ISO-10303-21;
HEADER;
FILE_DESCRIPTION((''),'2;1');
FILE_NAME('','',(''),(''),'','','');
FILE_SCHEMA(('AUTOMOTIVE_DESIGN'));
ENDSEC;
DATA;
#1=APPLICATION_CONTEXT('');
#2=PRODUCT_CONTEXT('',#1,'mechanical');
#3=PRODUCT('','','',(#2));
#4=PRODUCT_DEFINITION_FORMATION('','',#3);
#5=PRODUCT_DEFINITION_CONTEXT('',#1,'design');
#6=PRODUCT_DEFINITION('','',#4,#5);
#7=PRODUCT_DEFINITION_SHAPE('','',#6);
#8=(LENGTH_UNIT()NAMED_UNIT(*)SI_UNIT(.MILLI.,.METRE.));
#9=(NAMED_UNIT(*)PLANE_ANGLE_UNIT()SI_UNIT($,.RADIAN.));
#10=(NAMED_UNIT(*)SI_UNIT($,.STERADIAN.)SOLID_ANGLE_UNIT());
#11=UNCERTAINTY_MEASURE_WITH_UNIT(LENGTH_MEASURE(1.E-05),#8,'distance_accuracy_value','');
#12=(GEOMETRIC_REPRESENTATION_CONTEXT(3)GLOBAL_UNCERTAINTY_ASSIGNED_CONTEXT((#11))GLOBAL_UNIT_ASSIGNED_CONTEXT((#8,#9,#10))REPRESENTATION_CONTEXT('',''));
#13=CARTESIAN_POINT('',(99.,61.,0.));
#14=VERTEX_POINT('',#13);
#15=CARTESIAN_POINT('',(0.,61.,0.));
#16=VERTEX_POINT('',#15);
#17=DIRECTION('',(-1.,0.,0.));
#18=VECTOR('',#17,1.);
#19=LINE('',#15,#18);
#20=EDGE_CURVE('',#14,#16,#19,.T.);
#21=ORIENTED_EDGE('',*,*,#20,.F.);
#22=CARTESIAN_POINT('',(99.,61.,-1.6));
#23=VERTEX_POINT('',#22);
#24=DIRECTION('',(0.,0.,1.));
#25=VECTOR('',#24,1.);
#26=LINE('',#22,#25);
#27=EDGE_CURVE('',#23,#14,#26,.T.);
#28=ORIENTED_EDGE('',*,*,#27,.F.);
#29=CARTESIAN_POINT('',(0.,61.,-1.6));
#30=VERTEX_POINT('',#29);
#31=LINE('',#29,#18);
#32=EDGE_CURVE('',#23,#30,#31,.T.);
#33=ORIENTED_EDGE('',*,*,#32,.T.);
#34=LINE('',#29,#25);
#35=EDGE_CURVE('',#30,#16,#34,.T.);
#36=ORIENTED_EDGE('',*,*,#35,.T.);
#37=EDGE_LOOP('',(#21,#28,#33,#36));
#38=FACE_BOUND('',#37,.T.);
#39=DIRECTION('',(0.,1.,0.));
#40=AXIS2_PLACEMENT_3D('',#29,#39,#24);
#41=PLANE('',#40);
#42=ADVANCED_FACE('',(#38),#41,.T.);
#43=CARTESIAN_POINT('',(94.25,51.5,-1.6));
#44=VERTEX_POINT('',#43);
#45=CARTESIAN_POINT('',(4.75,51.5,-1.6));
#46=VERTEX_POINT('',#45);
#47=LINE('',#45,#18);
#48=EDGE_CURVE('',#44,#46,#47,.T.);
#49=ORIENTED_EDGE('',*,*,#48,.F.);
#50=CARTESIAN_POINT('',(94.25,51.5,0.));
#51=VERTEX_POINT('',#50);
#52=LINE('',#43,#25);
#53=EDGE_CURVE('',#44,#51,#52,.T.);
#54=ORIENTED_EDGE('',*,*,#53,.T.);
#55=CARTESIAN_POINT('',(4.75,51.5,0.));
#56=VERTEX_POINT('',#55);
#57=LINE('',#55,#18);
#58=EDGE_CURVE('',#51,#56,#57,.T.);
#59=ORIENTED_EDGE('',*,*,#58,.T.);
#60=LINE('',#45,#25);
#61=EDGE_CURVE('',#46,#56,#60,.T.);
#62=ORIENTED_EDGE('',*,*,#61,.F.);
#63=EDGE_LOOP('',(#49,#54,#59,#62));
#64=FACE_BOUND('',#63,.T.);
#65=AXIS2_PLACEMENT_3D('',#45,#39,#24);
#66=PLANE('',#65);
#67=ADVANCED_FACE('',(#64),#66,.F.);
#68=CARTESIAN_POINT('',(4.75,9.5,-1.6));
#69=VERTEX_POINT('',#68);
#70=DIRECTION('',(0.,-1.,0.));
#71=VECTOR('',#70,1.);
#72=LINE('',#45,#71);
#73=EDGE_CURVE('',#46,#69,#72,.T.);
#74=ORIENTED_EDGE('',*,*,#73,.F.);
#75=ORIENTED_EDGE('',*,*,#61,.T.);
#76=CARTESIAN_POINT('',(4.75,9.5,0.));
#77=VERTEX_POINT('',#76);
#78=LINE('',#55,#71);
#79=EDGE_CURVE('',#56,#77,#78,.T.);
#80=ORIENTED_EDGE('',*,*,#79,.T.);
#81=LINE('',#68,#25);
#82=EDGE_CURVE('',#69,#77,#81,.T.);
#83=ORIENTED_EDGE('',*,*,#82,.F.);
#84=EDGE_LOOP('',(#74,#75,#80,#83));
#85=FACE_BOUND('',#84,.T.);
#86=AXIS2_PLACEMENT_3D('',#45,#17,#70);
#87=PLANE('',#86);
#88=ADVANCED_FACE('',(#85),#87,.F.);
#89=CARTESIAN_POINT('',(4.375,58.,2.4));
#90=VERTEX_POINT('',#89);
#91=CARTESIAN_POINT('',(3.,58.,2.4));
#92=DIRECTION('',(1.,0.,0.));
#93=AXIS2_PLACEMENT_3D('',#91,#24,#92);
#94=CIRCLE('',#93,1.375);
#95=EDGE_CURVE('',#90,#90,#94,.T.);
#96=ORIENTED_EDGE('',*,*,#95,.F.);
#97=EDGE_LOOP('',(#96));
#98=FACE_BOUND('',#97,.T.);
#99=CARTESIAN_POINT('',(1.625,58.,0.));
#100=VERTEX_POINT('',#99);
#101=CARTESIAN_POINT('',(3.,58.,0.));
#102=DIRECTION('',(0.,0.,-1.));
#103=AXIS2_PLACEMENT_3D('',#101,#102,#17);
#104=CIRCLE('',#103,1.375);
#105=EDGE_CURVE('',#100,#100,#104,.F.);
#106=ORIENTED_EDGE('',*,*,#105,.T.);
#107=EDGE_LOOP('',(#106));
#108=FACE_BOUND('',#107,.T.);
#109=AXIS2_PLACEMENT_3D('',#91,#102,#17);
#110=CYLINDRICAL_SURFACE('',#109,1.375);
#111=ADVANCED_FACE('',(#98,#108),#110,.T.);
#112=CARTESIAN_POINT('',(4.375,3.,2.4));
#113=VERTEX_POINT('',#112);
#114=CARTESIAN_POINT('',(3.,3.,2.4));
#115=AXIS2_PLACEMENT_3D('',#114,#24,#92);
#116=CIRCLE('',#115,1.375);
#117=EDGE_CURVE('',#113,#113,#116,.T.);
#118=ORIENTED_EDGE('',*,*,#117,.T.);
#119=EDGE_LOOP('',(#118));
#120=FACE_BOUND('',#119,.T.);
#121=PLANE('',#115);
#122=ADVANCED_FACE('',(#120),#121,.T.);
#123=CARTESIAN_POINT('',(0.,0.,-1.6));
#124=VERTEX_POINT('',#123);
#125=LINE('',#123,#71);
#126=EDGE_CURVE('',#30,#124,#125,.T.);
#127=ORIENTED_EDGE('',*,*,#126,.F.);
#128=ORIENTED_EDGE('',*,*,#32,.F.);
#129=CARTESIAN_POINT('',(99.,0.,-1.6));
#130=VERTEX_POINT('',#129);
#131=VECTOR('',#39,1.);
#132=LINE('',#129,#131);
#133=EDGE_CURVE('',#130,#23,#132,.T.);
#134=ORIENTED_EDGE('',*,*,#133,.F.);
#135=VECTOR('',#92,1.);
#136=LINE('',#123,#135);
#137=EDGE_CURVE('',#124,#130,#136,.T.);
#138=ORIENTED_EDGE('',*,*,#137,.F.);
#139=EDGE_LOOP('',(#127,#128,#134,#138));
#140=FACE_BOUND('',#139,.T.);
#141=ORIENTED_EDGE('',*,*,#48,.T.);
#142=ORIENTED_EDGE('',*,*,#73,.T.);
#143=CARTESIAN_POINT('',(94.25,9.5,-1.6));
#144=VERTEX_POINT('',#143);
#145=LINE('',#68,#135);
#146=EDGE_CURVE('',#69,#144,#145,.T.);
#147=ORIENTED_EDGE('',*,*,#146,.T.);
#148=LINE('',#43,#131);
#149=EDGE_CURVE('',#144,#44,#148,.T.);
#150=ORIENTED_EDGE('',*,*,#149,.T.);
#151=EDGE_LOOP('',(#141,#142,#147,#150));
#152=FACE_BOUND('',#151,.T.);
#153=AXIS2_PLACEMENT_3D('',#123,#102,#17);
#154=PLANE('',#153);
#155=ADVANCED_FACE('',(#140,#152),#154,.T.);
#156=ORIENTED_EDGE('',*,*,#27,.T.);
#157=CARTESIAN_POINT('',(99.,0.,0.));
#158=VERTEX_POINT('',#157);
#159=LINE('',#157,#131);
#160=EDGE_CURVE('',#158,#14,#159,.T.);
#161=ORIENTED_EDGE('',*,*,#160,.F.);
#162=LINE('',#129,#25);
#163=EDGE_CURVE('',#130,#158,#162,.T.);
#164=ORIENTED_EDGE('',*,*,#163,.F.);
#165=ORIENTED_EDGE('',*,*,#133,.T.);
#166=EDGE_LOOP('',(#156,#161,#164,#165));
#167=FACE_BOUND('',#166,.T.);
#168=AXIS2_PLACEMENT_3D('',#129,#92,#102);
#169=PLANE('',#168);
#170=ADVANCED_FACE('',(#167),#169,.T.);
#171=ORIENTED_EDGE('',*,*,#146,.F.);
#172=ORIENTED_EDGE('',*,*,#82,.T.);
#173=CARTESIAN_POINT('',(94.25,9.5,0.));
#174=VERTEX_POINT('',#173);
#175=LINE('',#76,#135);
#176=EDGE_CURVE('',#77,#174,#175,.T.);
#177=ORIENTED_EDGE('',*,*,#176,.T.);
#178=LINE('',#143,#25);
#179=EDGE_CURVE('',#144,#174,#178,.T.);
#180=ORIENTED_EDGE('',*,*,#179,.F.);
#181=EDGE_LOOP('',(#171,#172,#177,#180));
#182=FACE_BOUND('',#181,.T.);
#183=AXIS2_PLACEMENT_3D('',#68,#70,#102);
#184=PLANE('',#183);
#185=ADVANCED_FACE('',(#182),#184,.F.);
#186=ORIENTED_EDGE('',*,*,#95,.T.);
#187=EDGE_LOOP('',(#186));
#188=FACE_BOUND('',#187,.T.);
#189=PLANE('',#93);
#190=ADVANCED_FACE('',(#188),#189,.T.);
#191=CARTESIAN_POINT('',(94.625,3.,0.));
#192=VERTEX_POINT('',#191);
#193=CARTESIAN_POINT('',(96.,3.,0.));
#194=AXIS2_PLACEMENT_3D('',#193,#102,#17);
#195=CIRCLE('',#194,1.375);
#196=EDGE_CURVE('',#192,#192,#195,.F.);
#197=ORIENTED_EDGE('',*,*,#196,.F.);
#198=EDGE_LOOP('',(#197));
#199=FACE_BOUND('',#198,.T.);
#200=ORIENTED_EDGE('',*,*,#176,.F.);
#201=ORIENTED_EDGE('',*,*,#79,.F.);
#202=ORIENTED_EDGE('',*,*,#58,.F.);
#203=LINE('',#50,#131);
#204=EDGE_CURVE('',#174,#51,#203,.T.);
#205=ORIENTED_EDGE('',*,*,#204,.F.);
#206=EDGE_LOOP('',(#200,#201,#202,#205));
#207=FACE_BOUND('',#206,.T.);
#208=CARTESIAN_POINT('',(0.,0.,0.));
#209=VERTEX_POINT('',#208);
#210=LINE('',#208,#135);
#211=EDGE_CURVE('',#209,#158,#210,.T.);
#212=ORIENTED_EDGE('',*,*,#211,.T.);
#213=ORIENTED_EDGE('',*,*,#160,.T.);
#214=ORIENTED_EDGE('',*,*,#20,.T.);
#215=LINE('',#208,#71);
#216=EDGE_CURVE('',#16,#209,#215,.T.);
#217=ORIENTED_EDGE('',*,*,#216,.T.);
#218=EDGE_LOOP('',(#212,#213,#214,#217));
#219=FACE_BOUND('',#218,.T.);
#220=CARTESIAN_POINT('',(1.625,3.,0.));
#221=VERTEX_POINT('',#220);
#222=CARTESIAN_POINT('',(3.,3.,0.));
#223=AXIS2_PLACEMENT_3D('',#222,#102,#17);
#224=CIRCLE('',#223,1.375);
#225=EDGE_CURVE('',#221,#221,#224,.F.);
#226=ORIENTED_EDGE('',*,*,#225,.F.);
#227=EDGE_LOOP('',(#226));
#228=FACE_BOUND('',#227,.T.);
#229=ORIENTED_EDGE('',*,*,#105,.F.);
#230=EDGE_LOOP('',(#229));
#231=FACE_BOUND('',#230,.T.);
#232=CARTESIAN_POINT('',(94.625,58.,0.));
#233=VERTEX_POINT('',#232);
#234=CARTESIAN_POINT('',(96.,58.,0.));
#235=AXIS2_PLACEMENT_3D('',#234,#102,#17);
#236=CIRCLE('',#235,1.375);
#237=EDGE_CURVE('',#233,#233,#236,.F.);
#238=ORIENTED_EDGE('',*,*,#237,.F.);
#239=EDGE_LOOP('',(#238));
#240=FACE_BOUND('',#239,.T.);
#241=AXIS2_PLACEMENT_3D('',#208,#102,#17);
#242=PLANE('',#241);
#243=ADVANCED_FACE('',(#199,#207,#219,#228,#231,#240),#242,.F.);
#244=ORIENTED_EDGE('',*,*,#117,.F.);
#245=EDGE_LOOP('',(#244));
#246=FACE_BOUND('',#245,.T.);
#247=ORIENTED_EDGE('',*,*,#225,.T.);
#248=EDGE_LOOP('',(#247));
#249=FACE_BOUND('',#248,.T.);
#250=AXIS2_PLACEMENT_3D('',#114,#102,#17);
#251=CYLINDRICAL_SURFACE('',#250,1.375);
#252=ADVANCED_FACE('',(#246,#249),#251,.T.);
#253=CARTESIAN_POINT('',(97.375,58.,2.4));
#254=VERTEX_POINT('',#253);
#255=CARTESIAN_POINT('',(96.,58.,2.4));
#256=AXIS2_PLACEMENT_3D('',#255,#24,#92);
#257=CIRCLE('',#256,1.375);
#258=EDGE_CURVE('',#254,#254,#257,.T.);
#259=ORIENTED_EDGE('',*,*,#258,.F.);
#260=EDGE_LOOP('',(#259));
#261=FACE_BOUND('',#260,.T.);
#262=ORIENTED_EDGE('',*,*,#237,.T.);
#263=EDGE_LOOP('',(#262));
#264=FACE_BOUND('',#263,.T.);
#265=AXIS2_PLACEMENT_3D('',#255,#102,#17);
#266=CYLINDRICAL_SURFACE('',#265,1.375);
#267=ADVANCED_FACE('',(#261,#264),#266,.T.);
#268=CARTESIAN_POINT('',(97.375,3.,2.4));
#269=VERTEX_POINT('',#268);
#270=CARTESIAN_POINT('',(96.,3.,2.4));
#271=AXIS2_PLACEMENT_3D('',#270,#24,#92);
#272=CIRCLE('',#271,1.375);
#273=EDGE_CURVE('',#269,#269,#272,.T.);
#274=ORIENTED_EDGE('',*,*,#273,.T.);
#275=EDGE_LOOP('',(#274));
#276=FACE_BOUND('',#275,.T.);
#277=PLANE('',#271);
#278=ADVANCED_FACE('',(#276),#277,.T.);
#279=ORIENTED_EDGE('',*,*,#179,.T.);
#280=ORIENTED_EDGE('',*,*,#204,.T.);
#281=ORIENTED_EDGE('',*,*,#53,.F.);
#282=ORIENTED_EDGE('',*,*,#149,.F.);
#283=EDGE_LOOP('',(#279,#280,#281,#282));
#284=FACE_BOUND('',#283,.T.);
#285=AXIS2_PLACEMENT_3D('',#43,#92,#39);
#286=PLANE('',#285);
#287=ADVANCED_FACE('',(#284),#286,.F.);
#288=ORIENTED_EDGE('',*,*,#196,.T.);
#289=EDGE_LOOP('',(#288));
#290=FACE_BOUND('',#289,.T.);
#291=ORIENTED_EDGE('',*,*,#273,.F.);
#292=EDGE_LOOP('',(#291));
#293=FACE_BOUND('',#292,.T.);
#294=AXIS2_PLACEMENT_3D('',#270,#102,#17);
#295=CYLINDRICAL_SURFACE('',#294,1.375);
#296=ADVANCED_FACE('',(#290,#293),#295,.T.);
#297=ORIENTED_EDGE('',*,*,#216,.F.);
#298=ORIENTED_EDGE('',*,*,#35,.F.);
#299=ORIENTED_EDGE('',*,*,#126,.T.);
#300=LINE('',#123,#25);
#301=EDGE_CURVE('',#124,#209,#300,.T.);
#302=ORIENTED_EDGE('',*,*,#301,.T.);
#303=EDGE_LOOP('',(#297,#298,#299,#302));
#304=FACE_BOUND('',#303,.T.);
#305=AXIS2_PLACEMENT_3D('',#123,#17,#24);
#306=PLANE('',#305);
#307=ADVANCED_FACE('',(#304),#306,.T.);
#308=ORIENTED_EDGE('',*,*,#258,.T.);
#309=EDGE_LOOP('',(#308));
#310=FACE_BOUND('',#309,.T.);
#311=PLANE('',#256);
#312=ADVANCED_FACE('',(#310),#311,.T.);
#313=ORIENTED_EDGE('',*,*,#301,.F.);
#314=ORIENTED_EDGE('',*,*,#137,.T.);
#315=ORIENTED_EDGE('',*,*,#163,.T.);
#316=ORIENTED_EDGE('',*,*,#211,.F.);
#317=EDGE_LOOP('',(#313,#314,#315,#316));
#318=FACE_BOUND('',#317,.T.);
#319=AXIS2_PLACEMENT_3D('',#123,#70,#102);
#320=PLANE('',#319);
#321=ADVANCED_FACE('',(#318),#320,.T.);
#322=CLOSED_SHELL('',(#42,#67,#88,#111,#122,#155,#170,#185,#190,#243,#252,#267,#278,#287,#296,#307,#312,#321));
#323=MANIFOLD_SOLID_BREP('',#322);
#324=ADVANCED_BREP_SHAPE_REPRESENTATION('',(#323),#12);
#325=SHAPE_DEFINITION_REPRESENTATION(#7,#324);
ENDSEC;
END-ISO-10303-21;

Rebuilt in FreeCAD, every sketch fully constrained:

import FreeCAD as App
import Part
import Sketcher

doc = App.newDocument("Part")
body = doc.addObject("PartDesign::Body", "Body")

sketch1 = body.newObject("Sketcher::SketchObject", "Sketch")
sketch1.AttachmentSupport = (doc.getObject("XY_Plane"), [""])
sketch1.MapMode = "FlatFace"
sketch1.addGeometry(Part.LineSegment(App.Vector(0, 61, 0), App.Vector(0, 0, 0)), False)
sketch1.addGeometry(Part.LineSegment(App.Vector(0, 0, 0), App.Vector(99, 0, 0)), False)
sketch1.addGeometry(Part.LineSegment(App.Vector(99, 0, 0), App.Vector(99, 61, 0)), False)
sketch1.addGeometry(Part.LineSegment(App.Vector(99, 61, 0), App.Vector(0, 61, 0)), False)
sketch1.addGeometry(Part.LineSegment(App.Vector(94, 10, 0), App.Vector(5, 10, 0)), False)
sketch1.addGeometry(Part.LineSegment(App.Vector(5, 10, 0), App.Vector(5, 52, 0)), False)
sketch1.addGeometry(Part.LineSegment(App.Vector(5, 52, 0), App.Vector(94, 52, 0)), False)
sketch1.addGeometry(Part.LineSegment(App.Vector(94, 52, 0), App.Vector(94, 10, 0)), False)
sketch1.addConstraint(Sketcher.Constraint("Coincident", 0, 2, 1, 1))
sketch1.addConstraint(Sketcher.Constraint("Coincident", 1, 2, 2, 1))
sketch1.addConstraint(Sketcher.Constraint("Coincident", 2, 2, 3, 1))
sketch1.addConstraint(Sketcher.Constraint("Coincident", 3, 2, 0, 1))
sketch1.addConstraint(Sketcher.Constraint("Coincident", 4, 2, 5, 1))
sketch1.addConstraint(Sketcher.Constraint("Coincident", 5, 2, 6, 1))
sketch1.addConstraint(Sketcher.Constraint("Coincident", 6, 2, 7, 1))
sketch1.addConstraint(Sketcher.Constraint("Coincident", 7, 2, 4, 1))
sketch1.addConstraint(Sketcher.Constraint("Vertical", 0))
sketch1.addConstraint(Sketcher.Constraint("Horizontal", 1))
sketch1.addConstraint(Sketcher.Constraint("Vertical", 2))
sketch1.addConstraint(Sketcher.Constraint("Horizontal", 3))
sketch1.addConstraint(Sketcher.Constraint("Horizontal", 4))
sketch1.addConstraint(Sketcher.Constraint("Vertical", 5))
sketch1.addConstraint(Sketcher.Constraint("Horizontal", 6))
sketch1.addConstraint(Sketcher.Constraint("Vertical", 7))
sketch1.addConstraint(Sketcher.Constraint("Coincident", 0, 2, -1, 1))
sketch1.addConstraint(Sketcher.Constraint("DistanceX", 1, 1, 1, 2, 99.0))
sketch1.addConstraint(Sketcher.Constraint("DistanceY", 0, 2, 0, 1, 61.0))
sketch1.addConstraint(Sketcher.Constraint("DistanceY", 5, 1, 5, 2, 42.0))
sketch1.addConstraint(Sketcher.Constraint("DistanceX", 4, 2, 4, 1, 89.5))
sketch1.addConstraint(Sketcher.Constraint("DistanceY", -1, 1, 4, 2, 9.5))
sketch1.addConstraint(Sketcher.Constraint("DistanceX", -1, 1, 4, 2, 4.75))
pad1 = body.newObject("PartDesign::Pad", "Pad")
pad1.Profile = sketch1
pad1.Length = 1.6
pad1.Reversed = True

sketch2 = body.newObject("Sketcher::SketchObject", "Sketch001")
sketch2.AttachmentSupport = (doc.getObject("XY_Plane"), [""])
sketch2.MapMode = "FlatFace"
sketch2.addGeometry(Part.Circle(App.Vector(3, 58, 0), App.Vector(0, 0, 1), 1.4), False)
sketch2.addGeometry(Part.Circle(App.Vector(96, 58, 0), App.Vector(0, 0, 1), 1.4), False)
sketch2.addGeometry(Part.Circle(App.Vector(96, 3, 0), App.Vector(0, 0, 1), 1.4), False)
sketch2.addGeometry(Part.Circle(App.Vector(3, 3, 0), App.Vector(0, 0, 1), 1.4), False)
sketch2.addConstraint(Sketcher.Constraint("Equal", 0, 1))
sketch2.addConstraint(Sketcher.Constraint("Equal", 1, 2))
sketch2.addConstraint(Sketcher.Constraint("Equal", 2, 3))
sketch2.addConstraint(Sketcher.Constraint("Horizontal", 0, 3, 1, 3))
sketch2.addConstraint(Sketcher.Constraint("Horizontal", 2, 3, 3, 3))
sketch2.addConstraint(Sketcher.Constraint("Vertical", 1, 3, 2, 3))
sketch2.addConstraint(Sketcher.Constraint("Vertical", 0, 3, 3, 3))
sketch2.addConstraint(Sketcher.Constraint("Diameter", 0, 2.75))
sketch2.addConstraint(Sketcher.Constraint("DistanceX", -1, 1, 0, 3, 3.0))
sketch2.addConstraint(Sketcher.Constraint("DistanceY", -1, 1, 0, 3, 58.0))
sketch2.addConstraint(Sketcher.Constraint("DistanceX", -1, 1, 1, 3, 96.0))
sketch2.addConstraint(Sketcher.Constraint("DistanceY", -1, 1, 2, 3, 3.0))
pad2 = body.newObject("PartDesign::Pad", "Pad001")
pad2.Profile = sketch2
pad2.Length = 2.4

doc.recompute()
